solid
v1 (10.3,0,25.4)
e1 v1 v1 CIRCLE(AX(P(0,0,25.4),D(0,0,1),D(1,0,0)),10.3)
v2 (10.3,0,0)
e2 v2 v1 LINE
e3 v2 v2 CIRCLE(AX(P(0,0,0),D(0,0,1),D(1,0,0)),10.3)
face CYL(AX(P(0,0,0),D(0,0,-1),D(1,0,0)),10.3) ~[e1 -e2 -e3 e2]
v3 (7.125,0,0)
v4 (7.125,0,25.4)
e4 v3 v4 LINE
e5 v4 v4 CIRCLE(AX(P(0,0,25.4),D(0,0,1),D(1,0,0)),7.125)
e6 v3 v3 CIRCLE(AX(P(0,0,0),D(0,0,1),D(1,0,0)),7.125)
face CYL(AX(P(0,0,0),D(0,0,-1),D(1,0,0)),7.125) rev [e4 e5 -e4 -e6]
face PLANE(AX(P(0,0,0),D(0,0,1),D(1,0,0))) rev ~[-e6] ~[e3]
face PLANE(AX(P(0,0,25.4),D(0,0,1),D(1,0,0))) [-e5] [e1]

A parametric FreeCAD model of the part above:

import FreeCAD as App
import Part
import Sketcher
from FreeCAD import Vector
Q = App.Units.Quantity

doc = App.newDocument("Part")
body = doc.addObject("PartDesign::Body", "Body")

# Sketch on XY plane
sketch1 = doc.addObject("Sketcher::SketchObject", "Sketch")
body.addObject(sketch1)
sketch1.AttachmentSupport = (doc.XY_Plane, [""])
sketch1.MapMode = "FlatFace"
sketch1.addGeometry(Part.Circle(Vector(0, 0, 0), Vector(0, 0, 1), 10), False)
sketch1.addGeometry(Part.Circle(Vector(0, 0, 0), Vector(0, 0, 1), 7), False)
sketch1.addConstraint(Sketcher.Constraint("Coincident", 0, 3, -1, 1))
sketch1.addConstraint(Sketcher.Constraint("Coincident", 1, 3, -1, 1))
sketch1.addConstraint(Sketcher.Constraint("Diameter", 1, Q("14.25 mm")))
sketch1.addConstraint(Sketcher.Constraint("Diameter", 0, Q("20.6 mm")))
pad1 = doc.addObject("PartDesign::Pad", "Pad")
body.addObject(pad1)
pad1.Profile = sketch1
pad1.Length = 25.4

doc.recompute()
